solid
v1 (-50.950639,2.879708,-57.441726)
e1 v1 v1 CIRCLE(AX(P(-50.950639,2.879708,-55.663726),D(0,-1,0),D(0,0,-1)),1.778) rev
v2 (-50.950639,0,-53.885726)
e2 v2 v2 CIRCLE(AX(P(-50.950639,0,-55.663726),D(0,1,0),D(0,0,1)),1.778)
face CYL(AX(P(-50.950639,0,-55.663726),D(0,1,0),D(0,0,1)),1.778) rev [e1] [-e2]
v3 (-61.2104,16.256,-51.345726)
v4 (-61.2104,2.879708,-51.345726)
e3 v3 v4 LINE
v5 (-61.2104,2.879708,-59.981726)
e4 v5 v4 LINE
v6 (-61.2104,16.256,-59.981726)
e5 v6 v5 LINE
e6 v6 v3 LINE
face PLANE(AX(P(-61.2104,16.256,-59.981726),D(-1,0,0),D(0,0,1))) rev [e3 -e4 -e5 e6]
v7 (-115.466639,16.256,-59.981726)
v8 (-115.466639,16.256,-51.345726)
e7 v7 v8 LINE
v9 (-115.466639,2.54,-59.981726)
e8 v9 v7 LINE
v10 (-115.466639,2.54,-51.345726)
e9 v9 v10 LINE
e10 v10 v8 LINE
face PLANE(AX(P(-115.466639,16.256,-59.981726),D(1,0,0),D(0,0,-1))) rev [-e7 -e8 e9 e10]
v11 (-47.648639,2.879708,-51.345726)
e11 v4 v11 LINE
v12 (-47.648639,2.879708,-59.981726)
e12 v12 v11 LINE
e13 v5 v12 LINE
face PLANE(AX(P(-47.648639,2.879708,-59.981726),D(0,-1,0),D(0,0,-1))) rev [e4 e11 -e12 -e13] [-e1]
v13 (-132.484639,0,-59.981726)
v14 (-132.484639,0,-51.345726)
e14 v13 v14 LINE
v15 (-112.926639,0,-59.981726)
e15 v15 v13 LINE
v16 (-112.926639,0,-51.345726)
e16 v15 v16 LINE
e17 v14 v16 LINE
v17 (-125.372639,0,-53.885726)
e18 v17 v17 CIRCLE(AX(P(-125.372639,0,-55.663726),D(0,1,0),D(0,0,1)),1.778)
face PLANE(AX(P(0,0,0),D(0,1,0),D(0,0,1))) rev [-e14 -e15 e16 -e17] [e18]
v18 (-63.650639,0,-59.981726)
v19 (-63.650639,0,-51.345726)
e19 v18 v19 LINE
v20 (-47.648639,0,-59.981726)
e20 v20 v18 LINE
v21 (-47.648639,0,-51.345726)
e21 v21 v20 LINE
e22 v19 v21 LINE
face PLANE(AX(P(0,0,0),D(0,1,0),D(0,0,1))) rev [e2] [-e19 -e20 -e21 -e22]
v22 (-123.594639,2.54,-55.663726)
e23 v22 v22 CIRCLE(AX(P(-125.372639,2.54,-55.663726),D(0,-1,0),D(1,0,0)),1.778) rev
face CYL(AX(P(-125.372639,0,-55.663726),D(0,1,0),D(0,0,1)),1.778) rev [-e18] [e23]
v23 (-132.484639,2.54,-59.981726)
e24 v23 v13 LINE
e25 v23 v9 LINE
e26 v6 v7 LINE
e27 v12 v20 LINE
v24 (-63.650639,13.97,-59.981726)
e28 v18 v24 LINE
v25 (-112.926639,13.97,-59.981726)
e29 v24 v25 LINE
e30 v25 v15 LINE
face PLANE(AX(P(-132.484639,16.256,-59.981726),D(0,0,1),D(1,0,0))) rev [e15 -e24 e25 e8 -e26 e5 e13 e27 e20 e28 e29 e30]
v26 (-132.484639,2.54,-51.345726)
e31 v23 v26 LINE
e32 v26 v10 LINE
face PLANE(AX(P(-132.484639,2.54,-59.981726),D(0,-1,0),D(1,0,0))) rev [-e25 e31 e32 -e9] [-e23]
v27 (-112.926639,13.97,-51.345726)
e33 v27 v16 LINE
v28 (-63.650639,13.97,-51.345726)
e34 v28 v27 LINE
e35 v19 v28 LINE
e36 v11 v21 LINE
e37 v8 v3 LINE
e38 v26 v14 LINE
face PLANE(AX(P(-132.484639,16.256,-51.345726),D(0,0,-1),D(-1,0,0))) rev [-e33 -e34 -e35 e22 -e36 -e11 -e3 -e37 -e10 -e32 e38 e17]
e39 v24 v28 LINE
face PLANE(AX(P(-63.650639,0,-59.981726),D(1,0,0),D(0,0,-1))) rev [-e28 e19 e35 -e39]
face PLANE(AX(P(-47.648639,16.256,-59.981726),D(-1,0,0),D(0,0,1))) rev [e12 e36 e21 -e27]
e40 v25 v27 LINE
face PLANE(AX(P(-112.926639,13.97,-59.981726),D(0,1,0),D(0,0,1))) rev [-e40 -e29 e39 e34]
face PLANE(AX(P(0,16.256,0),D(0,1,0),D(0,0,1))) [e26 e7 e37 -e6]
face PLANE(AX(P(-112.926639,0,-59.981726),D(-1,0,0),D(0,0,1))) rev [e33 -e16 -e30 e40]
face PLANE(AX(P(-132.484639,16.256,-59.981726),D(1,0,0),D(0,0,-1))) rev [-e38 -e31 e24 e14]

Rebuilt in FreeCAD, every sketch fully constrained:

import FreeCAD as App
import Part
import Sketcher
from FreeCAD import Vector
Q = App.Units.Quantity

doc = App.newDocument("Part")
body = doc.addObject("PartDesign::Body", "Body")

# Sketch on XZ plane
sketch1 = body.newObject("Sketcher::SketchObject", "Sketch")
sketch1.AttachmentSupport = (doc.getObject("XZ_Plane"), [""])
sketch1.MapMode = "FlatFace"
sketch1.addGeometry([
    Part.LineSegment(Vector(-132, -60, 0), Vector(-132, -51, 0)),
    Part.LineSegment(Vector(-132, -51, 0), Vector(-48, -51, 0)),
    Part.LineSegment(Vector(-48, -51, 0), Vector(-48, -60, 0)),
    Part.LineSegment(Vector(-48, -60, 0), Vector(-132, -60, 0)),
], False)
sketch1.addConstraint([
    Sketcher.Constraint("Coincident", 0, 2, 1, 1),
    Sketcher.Constraint("Coincident", 1, 2, 2, 1),
    Sketcher.Constraint("Coincident", 2, 2, 3, 1),
    Sketcher.Constraint("Coincident", 3, 2, 0, 1),
    Sketcher.Constraint("Vertical", 0),
    Sketcher.Constraint("Horizontal", 1),
    Sketcher.Constraint("Vertical", 2),
    Sketcher.Constraint("Horizontal", 3),
    Sketcher.Constraint("DistanceX", 1, 1, 1, 2, Q("3.34 in")),
    Sketcher.Constraint("DistanceY", 0, 1, 0, 2, Q("0.34 in")),
    Sketcher.Constraint("DistanceX", 0, 2, -1, 1, 132.484639),
    Sketcher.Constraint("DistanceY", 0, 2, -1, 1, 51.345726),
])
pad1 = body.newObject("PartDesign::Pad", "Pad")
pad1.Profile = sketch1
pad1.Length = Q("0.64 in")
pad1.Reversed = True

# Sketch on XY plane
sketch2 = body.newObject("Sketcher::SketchObject", "Sketch001")
sketch2.AttachmentSupport = (doc.getObject("XY_Plane"), [""])
sketch2.MapMode = "FlatFace"
sketch2.AttachmentOffset = App.Placement(Vector(0, 0, -51.345726), App.Rotation())
sketch2.addGeometry([
    Part.LineSegment(Vector(-113, 14, 0), Vector(-113, 0, 0)),
    Part.LineSegment(Vector(-113, 0, 0), Vector(-64, 0, 0)),
    Part.LineSegment(Vector(-64, 0, 0), Vector(-64, 14, 0)),
    Part.LineSegment(Vector(-64, 14, 0), Vector(-113, 14, 0)),
], False)
sketch2.addConstraint([
    Sketcher.Constraint("Coincident", 0, 2, 1, 1),
    Sketcher.Constraint("Coincident", 1, 2, 2, 1),
    Sketcher.Constraint("Coincident", 2, 2, 3, 1),
    Sketcher.Constraint("Coincident", 3, 2, 0, 1),
    Sketcher.Constraint("Vertical", 0),
    Sketcher.Constraint("Horizontal", 1),
    Sketcher.Constraint("Vertical", 2),
    Sketcher.Constraint("Horizontal", 3),
    Sketcher.Constraint("PointOnObject", 0, 2, -1),
    Sketcher.Constraint("DistanceX", 1, 1, 1, 2, Q("1.94 in")),
    Sketcher.Constraint("DistanceY", 0, 2, 0, 1, Q("0.55 in")),
    Sketcher.Constraint("DistanceX", 0, 2, -1, 1, 112.926639),
])
pocket1 = body.newObject("PartDesign::Pocket", "Pocket")
pocket1.Profile = sketch2
pocket1.Type = "ThroughAll"

# Sketch on XZ plane
sketch3 = body.newObject("Sketcher::SketchObject", "Sketch002")
sketch3.AttachmentSupport = (doc.getObject("XZ_Plane"), [""])
sketch3.MapMode = "FlatFace"
sketch3.AttachmentOffset = App.Placement(Vector(0, 0, -0.64 * 25.4), App.Rotation())
sketch3.addGeometry([
    Part.Circle(Vector(-51, -55.7, 0), Vector(0, 0, 1), 1.8),
    Part.Circle(Vector(-125.4, -55.7, 0), Vector(0, 0, 1), 1.8),
], False)
sketch3.addConstraint([
    Sketcher.Constraint("Equal", 0, 1),
    Sketcher.Constraint("Horizontal", 0, 3, 1, 3),
    Sketcher.Constraint("Diameter", 0, Q("0.14 in")),
    Sketcher.Constraint("DistanceX", 1, 3, 0, 3, Q("2.93 in")),
    Sketcher.Constraint("DistanceX", 0, 3, -1, 1, 50.950639),
    Sketcher.Constraint("DistanceY", 0, 3, -1, 1, 55.663726),
])
pocket2 = body.newObject("PartDesign::Pocket", "Pocket001")
pocket2.Profile = sketch3
pocket2.Type = "ThroughAll"
pocket2.Reversed = True

# Sketch on XY plane
sketch4 = body.newObject("Sketcher::SketchObject", "Sketch003")
sketch4.AttachmentSupport = (doc.getObject("XY_Plane"), [""])
sketch4.MapMode = "FlatFace"
sketch4.AttachmentOffset = App.Placement(Vector(0, 0, -51.345726), App.Rotation())
sketch4.addGeometry([
    Part.LineSegment(Vector(-132, 16, 0), Vector(-132, 3, 0)),  # 0
    Part.LineSegment(Vector(-132, 3, 0), Vector(-115, 3, 0)),  # 1
    Part.LineSegment(Vector(-115, 3, 0), Vector(-115, 16, 0)),  # 2
    Part.LineSegment(Vector(-115, 16, 0), Vector(-132, 16, 0)),  # 3
    Part.LineSegment(Vector(-61, 16, 0), Vector(-61, 3, 0)),  # 4
    Part.LineSegment(Vector(-61, 3, 0), Vector(-48, 3, 0)),  # 5
    Part.LineSegment(Vector(-48, 3, 0), Vector(-48, 16, 0)),  # 6
    Part.LineSegment(Vector(-48, 16, 0), Vector(-61, 16, 0)),  # 7
], False)
sketch4.addConstraint([
    Sketcher.Constraint("Coincident", 0, 2, 1, 1),
    Sketcher.Constraint("Coincident", 1, 2, 2, 1),
    Sketcher.Constraint("Coincident", 2, 2, 3, 1),
    Sketcher.Constraint("Coincident", 3, 2, 0, 1),
    Sketcher.Constraint("Coincident", 4, 2, 5, 1),
    Sketcher.Constraint("Coincident", 5, 2, 6, 1),
    Sketcher.Constraint("Coincident", 6, 2, 7, 1),
    Sketcher.Constraint("Coincident", 7, 2, 4, 1),
    Sketcher.Constraint("Vertical", 0),
    Sketcher.Constraint("Horizontal", 1),
    Sketcher.Constraint("Vertical", 2),
    Sketcher.Constraint("Horizontal", 3),
    Sketcher.Constraint("Vertical", 4),
    Sketcher.Constraint("Horizontal", 5),
    Sketcher.Constraint("Vertical", 6),
    Sketcher.Constraint("Horizontal", 7),
    Sketcher.Constraint("Horizontal", 3, 2, 6, 2),
    Sketcher.Constraint("DistanceX", 1, 1, 1, 2, Q("0.67 in")),
    Sketcher.Constraint("DistanceY", 0, 2, 0, 1, Q("0.54 in")),
    Sketcher.Constraint("DistanceY", -1, 1, 0, 2, Q("0.1 in")),
    Sketcher.Constraint("DistanceX", 1, 2, 5, 2, Q("2.67 in")),
    Sketcher.Constraint("DistanceX", 5, 1, 5, 2, 13.561761),
    Sketcher.Constraint("DistanceX", 4, 2, -1, 1, 61.2104),
    Sketcher.Constraint("DistanceY", 4, 2, 4, 1, 13.376292),
])
pocket3 = body.newObject("PartDesign::Pocket", "Pocket002")
pocket3.Profile = sketch4
pocket3.Type = "ThroughAll"

doc.recompute()
